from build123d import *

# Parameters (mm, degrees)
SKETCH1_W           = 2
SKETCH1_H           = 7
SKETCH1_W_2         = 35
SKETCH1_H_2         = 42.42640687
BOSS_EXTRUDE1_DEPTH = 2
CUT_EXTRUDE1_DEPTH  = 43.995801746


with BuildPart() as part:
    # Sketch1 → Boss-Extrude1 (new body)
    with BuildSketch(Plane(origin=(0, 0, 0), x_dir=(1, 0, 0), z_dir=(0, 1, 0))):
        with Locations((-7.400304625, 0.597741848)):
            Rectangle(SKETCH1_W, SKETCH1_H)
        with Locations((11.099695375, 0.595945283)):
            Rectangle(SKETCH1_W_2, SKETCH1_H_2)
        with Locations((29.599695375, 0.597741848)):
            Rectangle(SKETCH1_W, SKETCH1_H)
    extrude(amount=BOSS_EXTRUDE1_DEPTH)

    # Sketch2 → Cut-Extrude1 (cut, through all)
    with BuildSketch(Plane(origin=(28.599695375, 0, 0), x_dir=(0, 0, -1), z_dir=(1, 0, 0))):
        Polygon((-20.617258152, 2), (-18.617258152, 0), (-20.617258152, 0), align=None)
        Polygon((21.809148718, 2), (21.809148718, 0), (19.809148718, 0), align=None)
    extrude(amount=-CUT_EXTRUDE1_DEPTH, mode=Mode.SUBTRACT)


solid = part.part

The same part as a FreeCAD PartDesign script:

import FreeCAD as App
import Part
import Sketcher

doc = App.newDocument("Part")
body = doc.addObject("PartDesign::Body", "Body")

# Sketch on XZ plane
sketch1 = body.newObject("Sketcher::SketchObject", "Sketch")
sketch1.AttachmentSupport = (doc.getObject("XZ_Plane"), [""])
sketch1.MapMode = "FlatFace"
sketch1.addGeometry([
    Part.LineSegment(App.Vector(-8.4, -4.1, 0), App.Vector(-8.4, 2.9, 0)),  # 0
    Part.LineSegment(App.Vector(-8.4, 2.9, 0), App.Vector(-6.4, 2.9, 0)),  # 1
    Part.LineSegment(App.Vector(-6.4, 2.9, 0), App.Vector(-6.4, 20.6, 0)),  # 2
    Part.LineSegment(App.Vector(-6.4, 20.6, 0), App.Vector(28.6, 20.6, 0)),  # 3
    Part.LineSegment(App.Vector(28.6, 20.6, 0), App.Vector(28.6, 2.9, 0)),  # 4
    Part.LineSegment(App.Vector(28.6, 2.9, 0), App.Vector(30.6, 2.9, 0)),  # 5
    Part.LineSegment(App.Vector(30.6, 2.9, 0), App.Vector(30.6, -4.1, 0)),  # 6
    Part.LineSegment(App.Vector(30.6, -4.1, 0), App.Vector(28.6, -4.1, 0)),  # 7
    Part.LineSegment(App.Vector(28.6, -4.1, 0), App.Vector(28.6, -21.8, 0)),  # 8
    Part.LineSegment(App.Vector(28.6, -21.8, 0), App.Vector(-6.4, -21.8, 0)),  # 9
    Part.LineSegment(App.Vector(-6.4, -21.8, 0), App.Vector(-6.4, -4.1, 0)),  # 10
    Part.LineSegment(App.Vector(-6.4, -4.1, 0), App.Vector(-8.4, -4.1, 0)),  # 11
], False)
sketch1.addConstraint([
    Sketcher.Constraint("Coincident", 0, 2, 1, 1),
    Sketcher.Constraint("Coincident", 1, 2, 2, 1),
    Sketcher.Constraint("Coincident", 2, 2, 3, 1),
    Sketcher.Constraint("Coincident", 3, 2, 4, 1),
    Sketcher.Constraint("Coincident", 4, 2, 5, 1),
    Sketcher.Constraint("Coincident", 5, 2, 6, 1),
    Sketcher.Constraint("Coincident", 6, 2, 7, 1),
    Sketcher.Constraint("Coincident", 7, 2, 8, 1),
    Sketcher.Constraint("Coincident", 8, 2, 9, 1),
    Sketcher.Constraint("Coincident", 9, 2, 10, 1),
    Sketcher.Constraint("Coincident", 10, 2, 11, 1),
    Sketcher.Constraint("Coincident", 11, 2, 0, 1),
    Sketcher.Constraint("Vertical", 0),
    Sketcher.Constraint("Horizontal", 1),
    Sketcher.Constraint("Vertical", 2),
    Sketcher.Constraint("Horizontal", 3),
    Sketcher.Constraint("Vertical", 4),
    Sketcher.Constraint("Horizontal", 5),
    Sketcher.Constraint("Vertical", 6),
    Sketcher.Constraint("Horizontal", 7),
    Sketcher.Constraint("Vertical", 8),
    Sketcher.Constraint("Horizontal", 9),
    Sketcher.Constraint("Vertical", 10),
    Sketcher.Constraint("Horizontal", 11),
    Sketcher.Constraint("Horizontal", 1, 2, 4, 2),
    Sketcher.Constraint("Horizontal", 7, 2, 10, 2),
    Sketcher.Constraint("Vertical", 4, 2, 7, 2),
    Sketcher.Constraint("Vertical", 2, 2, 9, 2),
    Sketcher.Constraint("Equal", 1, 5),
    Sketcher.Constraint("DistanceX", 1, 1, 1, 2, 2.0),
    Sketcher.Constraint("DistanceX", 3, 1, 3, 2, 35.0),
    Sketcher.Constraint("DistanceY", 0, 1, 0, 2, 7.0),
    Sketcher.Constraint("DistanceY", 2, 1, 2, 2, 17.715),
    Sketcher.Constraint("DistanceY", 8, 2, 8, 1, 17.711407),
    Sketcher.Constraint("DistanceY", -1, 1, 0, 2, 2.902258),
    Sketcher.Constraint("DistanceX", 0, 2, -1, 1, 8.400305),
])
pad1 = body.newObject("PartDesign::Pad", "Pad")
pad1.Profile = sketch1
pad1.Length = 2
pad1.Reversed = True

# Sketch on YZ plane
sketch2 = body.newObject("Sketcher::SketchObject", "Sketch001")
sketch2.AttachmentSupport = (doc.getObject("YZ_Plane"), [""])
sketch2.MapMode = "FlatFace"
sketch2.AttachmentOffset = App.Placement(App.Vector(0, 0, 28.599695), App.Rotation())
sketch2.addGeometry([
    Part.LineSegment(App.Vector(0, 18.6, 0), App.Vector(2, 20.6, 0)),  # 0
    Part.LineSegment(App.Vector(2, 20.6, 0), App.Vector(0, 20.6, 0)),  # 1
    Part.LineSegment(App.Vector(0, 20.6, 0), App.Vector(0, 18.6, 0)),  # 2
    Part.LineSegment(App.Vector(0, -21.8, 0), App.Vector(2, -21.8, 0)),  # 3
    Part.LineSegment(App.Vector(2, -21.8, 0), App.Vector(0, -19.8, 0)),  # 4
    Part.LineSegment(App.Vector(0, -19.8, 0), App.Vector(0, -21.8, 0)),  # 5
], False)
sketch2.addConstraint([
    Sketcher.Constraint("Coincident", 0, 2, 1, 1),
    Sketcher.Constraint("Coincident", 1, 2, 2, 1),
    Sketcher.Constraint("Coincident", 2, 2, 0, 1),
    Sketcher.Constraint("Coincident", 3, 2, 4, 1),
    Sketcher.Constraint("Coincident", 4, 2, 5, 1),
    Sketcher.Constraint("Coincident", 5, 2, 3, 1),
    Sketcher.Constraint("Horizontal", 1),
    Sketcher.Constraint("Vertical", 2),
    Sketcher.Constraint("Horizontal", 3),
    Sketcher.Constraint("Vertical", 5),
    Sketcher.Constraint("PointOnObject", 1, 2, -2),
    Sketcher.Constraint("PointOnObject", 4, 2, -2),
    Sketcher.Constraint("Perpendicular", 0, 4),
    Sketcher.Constraint("Vertical", 0, 2, 3, 2),
    Sketcher.Constraint("Equal", 3, 2),
    Sketcher.Constraint("DistanceX", 1, 2, 1, 1, 2.0),
    Sketcher.Constraint("DistanceY", -1, 1, 0, 2, 20.617258),
    Sketcher.Constraint("DistanceY", 3, 2, -1, 1, 21.809149),
])
pocket1 = body.newObject("PartDesign::Pocket", "Pocket")
pocket1.Profile = sketch2
pocket1.Type = "ThroughAll"

doc.recompute()
